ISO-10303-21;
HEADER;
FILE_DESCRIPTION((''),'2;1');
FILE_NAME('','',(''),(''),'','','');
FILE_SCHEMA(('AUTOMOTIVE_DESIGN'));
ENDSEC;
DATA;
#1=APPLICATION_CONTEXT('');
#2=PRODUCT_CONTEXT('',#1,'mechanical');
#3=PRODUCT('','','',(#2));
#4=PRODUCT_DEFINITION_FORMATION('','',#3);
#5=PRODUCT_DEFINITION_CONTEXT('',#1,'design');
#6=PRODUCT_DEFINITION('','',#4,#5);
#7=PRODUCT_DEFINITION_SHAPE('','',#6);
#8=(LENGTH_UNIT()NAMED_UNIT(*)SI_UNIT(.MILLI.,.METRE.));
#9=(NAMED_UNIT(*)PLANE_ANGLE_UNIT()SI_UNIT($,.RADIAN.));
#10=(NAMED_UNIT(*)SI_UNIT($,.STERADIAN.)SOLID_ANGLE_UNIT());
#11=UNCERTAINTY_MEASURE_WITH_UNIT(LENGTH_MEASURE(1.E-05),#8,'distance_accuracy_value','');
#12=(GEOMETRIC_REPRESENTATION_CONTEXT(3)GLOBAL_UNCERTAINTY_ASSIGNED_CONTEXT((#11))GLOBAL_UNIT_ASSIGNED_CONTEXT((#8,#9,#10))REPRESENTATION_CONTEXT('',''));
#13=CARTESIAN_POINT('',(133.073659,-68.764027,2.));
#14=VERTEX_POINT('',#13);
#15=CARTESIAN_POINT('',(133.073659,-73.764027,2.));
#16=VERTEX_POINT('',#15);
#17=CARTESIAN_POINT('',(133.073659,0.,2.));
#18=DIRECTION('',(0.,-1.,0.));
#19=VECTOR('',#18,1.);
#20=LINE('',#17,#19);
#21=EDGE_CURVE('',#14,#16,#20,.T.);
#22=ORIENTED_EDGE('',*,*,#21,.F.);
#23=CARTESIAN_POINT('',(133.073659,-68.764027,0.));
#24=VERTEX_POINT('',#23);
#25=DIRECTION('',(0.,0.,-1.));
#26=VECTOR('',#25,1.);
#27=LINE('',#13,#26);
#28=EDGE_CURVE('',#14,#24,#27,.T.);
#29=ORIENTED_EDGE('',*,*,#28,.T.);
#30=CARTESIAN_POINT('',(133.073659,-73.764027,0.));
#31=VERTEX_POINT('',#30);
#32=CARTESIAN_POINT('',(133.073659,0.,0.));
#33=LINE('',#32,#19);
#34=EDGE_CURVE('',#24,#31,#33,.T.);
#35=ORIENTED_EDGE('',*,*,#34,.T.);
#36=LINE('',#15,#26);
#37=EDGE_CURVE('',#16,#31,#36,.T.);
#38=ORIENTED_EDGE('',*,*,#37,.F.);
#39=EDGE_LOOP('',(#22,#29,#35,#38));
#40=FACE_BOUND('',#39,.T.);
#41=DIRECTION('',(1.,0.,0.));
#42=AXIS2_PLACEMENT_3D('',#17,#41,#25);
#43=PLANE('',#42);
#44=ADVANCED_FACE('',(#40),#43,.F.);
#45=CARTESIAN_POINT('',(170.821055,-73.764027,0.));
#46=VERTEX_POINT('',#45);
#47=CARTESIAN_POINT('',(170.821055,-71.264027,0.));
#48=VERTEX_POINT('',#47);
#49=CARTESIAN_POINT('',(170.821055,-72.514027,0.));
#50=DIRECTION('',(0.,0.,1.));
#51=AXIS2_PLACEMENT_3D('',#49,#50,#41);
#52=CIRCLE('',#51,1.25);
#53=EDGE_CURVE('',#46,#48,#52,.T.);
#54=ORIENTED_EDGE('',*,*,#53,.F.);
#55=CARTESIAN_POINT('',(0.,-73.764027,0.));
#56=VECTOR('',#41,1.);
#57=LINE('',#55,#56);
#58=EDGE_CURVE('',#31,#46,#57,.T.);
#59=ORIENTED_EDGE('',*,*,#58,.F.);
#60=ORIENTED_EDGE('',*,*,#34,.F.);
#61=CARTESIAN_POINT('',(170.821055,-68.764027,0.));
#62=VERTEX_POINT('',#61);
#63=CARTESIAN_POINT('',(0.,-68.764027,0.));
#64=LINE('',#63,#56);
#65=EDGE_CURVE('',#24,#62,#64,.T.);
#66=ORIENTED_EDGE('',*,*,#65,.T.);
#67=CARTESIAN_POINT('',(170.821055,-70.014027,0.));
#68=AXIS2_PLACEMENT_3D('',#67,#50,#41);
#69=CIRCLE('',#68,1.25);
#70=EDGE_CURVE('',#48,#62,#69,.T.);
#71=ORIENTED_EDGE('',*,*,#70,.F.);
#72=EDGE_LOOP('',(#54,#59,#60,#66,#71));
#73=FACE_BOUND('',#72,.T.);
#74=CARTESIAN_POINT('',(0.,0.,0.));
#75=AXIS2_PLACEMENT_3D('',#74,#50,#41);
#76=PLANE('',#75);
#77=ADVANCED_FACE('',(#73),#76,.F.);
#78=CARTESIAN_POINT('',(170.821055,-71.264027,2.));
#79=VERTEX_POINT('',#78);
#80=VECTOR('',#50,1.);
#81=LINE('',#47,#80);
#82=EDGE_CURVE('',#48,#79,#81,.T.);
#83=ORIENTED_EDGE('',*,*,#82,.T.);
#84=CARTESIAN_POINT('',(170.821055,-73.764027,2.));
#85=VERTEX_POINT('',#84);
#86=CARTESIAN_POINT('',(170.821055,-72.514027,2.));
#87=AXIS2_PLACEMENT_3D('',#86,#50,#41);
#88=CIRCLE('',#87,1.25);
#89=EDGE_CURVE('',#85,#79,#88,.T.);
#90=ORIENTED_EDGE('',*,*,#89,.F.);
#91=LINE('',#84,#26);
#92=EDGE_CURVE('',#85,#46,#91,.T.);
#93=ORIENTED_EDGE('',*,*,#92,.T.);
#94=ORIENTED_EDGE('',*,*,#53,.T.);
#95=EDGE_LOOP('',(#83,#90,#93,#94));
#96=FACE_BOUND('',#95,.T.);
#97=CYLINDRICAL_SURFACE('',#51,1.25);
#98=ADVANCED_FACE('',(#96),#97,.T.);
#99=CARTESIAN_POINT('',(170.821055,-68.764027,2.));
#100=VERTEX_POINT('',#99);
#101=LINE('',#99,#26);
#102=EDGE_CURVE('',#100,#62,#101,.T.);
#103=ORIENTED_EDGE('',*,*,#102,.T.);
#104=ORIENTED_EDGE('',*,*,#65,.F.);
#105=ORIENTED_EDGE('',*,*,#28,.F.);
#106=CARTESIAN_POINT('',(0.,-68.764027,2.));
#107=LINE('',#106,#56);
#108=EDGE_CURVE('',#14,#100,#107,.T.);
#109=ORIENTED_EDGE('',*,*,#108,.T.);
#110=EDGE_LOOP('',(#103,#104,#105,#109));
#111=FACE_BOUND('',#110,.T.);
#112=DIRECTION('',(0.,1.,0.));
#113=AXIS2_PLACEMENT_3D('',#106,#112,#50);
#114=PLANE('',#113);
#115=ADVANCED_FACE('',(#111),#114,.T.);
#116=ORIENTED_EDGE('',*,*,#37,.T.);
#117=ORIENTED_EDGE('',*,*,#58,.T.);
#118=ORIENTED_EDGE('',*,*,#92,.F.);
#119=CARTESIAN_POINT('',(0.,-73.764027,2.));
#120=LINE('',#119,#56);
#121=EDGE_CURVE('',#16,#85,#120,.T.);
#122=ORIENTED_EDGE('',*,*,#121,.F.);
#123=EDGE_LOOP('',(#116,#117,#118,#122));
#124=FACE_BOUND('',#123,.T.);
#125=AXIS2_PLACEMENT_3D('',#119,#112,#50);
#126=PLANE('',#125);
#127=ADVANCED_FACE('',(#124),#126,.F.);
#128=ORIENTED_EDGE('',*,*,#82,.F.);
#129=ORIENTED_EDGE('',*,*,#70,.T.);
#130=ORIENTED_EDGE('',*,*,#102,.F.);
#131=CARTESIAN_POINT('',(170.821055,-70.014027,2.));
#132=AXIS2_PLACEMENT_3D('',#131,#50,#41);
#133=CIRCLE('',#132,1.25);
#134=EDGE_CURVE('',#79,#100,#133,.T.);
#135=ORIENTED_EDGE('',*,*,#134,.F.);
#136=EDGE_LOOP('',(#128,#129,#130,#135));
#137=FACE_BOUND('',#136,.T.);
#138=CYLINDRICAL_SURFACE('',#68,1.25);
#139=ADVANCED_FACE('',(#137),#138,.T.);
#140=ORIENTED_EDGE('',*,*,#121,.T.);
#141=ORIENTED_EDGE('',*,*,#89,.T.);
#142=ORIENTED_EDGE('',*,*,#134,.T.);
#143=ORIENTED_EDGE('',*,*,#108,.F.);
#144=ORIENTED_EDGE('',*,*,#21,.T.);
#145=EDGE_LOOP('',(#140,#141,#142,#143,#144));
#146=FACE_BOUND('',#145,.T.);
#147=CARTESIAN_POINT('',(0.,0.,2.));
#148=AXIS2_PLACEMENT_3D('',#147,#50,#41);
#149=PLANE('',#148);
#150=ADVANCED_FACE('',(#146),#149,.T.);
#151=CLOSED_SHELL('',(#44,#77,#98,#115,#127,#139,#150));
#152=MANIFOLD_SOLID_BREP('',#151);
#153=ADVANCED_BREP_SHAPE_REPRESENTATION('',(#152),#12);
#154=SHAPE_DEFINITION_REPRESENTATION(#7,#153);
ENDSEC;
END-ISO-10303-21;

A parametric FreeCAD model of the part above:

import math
import FreeCAD as App
import Part
import Sketcher
from FreeCAD import Vector

doc = App.newDocument("Part")
body = doc.addObject("PartDesign::Body", "Body")

sketch1 = body.newObject("Sketcher::SketchObject", "Sketch")
sketch1.AttachmentSupport = (doc.getObject("XY_Plane"), [""])
sketch1.MapMode = "FlatFace"
sketch1.addGeometry([
    Part.LineSegment(Vector(171, -74, 0), Vector(171, -69, 0)),
    Part.LineSegment(Vector(171, -69, 0), Vector(133, -69, 0)),
    Part.LineSegment(Vector(133, -69, 0), Vector(133, -74, 0)),
    Part.LineSegment(Vector(133, -74, 0), Vector(171, -74, 0)),
], False)
sketch1.addConstraint([
    Sketcher.Constraint("Coincident", 0, 2, 1, 1),
    Sketcher.Constraint("Coincident", 1, 2, 2, 1),
    Sketcher.Constraint("Coincident", 2, 2, 3, 1),
    Sketcher.Constraint("Coincident", 3, 2, 0, 1),
    Sketcher.Constraint("Vertical", 0),
    Sketcher.Constraint("Horizontal", 1),
    Sketcher.Constraint("Vertical", 2),
    Sketcher.Constraint("Horizontal", 3),
    Sketcher.Constraint("DistanceY", 0, 1, 0, 2, 5.0),
    Sketcher.Constraint("DistanceX", 1, 2, 1, 1, 37.747396),
    Sketcher.Constraint("DistanceX", -1, 1, 1, 2, 133.073659),
    Sketcher.Constraint("DistanceY", 0, 2, -1, 1, 68.764027),
])
pad1 = body.newObject("PartDesign::Pad", "Pad")
pad1.Profile = sketch1
pad1.Length = 2

sketch2 = body.newObject("Sketcher::SketchObject", "Sketch001")
sketch2.AttachmentSupport = (doc.getObject("XY_Plane"), [""])
sketch2.MapMode = "FlatFace"
sketch2.AttachmentOffset = App.Placement(Vector(0, 0, 2), App.Rotation())
sketch2.addGeometry([
    Part.ArcOfCircle(Part.Circle(Vector(170.8, -70, 0), Vector(0, 0, 1), 1.2), math.radians(90), math.radians(270)),
    Part.ArcOfCircle(Part.Circle(Vector(170.8, -70, 0), Vector(0, 0, 1), 1.2), math.radians(-90), math.radians(0)),
    Part.ArcOfCircle(Part.Circle(Vector(170.8, -70, 0), Vector(0, 0, 1), 1.2), math.radians(0), math.radians(90)),
    Part.ArcOfCircle(Part.Circle(Vector(170.8, -72.5, 0), Vector(0, 0, 1), 1.2), math.radians(0), math.radians(90)),
    Part.ArcOfCircle(Part.Circle(Vector(170.8, -72.5, 0), Vector(0, 0, 1), 1.2), math.radians(90), math.radians(270)),
    Part.ArcOfCircle(Part.Circle(Vector(170.8, -72.5, 0), Vector(0, 0, 1), 1.2), math.radians(-90), math.radians(0)),
], False)
sketch2.addConstraint([
    Sketcher.Constraint("Tangent", 0, 2, 1, 1),
    Sketcher.Constraint("Tangent", 1, 2, 2, 1),
    Sketcher.Constraint("Tangent", 2, 2, 0, 1),
    Sketcher.Constraint("Tangent", 3, 2, 4, 1),
    Sketcher.Constraint("Tangent", 4, 2, 5, 1),
    Sketcher.Constraint("Tangent", 5, 2, 3, 1),
    Sketcher.Constraint("Coincident", 3, 2, 0, 2),
    Sketcher.Constraint("Equal", 2, 3),
    Sketcher.Constraint("Horizontal", 2, 3, 1, 2),
    Sketcher.Constraint("Horizontal", 4, 3, 5, 2),
    Sketcher.Constraint("Vertical", 2, 3, 3, 3),
    Sketcher.Constraint("Vertical", 5, 3, 0, 2),
    Sketcher.Constraint("Vertical", 0, 2, 2, 2),
    Sketcher.Constraint("Vertical", 3, 2, 4, 2),
    Sketcher.Constraint("Radius", 0, 1.25),
    Sketcher.Constraint("DistanceX", -1, 1, 0, 3, 170.821055),
    Sketcher.Constraint("DistanceY", 0, 3, -1, 1, 70.014027),
])
pad2 = body.newObject("PartDesign::Pad", "Pad001")
pad2.Profile = sketch2
pad2.Length = 2
pad2.Reversed = True

doc.recompute()
